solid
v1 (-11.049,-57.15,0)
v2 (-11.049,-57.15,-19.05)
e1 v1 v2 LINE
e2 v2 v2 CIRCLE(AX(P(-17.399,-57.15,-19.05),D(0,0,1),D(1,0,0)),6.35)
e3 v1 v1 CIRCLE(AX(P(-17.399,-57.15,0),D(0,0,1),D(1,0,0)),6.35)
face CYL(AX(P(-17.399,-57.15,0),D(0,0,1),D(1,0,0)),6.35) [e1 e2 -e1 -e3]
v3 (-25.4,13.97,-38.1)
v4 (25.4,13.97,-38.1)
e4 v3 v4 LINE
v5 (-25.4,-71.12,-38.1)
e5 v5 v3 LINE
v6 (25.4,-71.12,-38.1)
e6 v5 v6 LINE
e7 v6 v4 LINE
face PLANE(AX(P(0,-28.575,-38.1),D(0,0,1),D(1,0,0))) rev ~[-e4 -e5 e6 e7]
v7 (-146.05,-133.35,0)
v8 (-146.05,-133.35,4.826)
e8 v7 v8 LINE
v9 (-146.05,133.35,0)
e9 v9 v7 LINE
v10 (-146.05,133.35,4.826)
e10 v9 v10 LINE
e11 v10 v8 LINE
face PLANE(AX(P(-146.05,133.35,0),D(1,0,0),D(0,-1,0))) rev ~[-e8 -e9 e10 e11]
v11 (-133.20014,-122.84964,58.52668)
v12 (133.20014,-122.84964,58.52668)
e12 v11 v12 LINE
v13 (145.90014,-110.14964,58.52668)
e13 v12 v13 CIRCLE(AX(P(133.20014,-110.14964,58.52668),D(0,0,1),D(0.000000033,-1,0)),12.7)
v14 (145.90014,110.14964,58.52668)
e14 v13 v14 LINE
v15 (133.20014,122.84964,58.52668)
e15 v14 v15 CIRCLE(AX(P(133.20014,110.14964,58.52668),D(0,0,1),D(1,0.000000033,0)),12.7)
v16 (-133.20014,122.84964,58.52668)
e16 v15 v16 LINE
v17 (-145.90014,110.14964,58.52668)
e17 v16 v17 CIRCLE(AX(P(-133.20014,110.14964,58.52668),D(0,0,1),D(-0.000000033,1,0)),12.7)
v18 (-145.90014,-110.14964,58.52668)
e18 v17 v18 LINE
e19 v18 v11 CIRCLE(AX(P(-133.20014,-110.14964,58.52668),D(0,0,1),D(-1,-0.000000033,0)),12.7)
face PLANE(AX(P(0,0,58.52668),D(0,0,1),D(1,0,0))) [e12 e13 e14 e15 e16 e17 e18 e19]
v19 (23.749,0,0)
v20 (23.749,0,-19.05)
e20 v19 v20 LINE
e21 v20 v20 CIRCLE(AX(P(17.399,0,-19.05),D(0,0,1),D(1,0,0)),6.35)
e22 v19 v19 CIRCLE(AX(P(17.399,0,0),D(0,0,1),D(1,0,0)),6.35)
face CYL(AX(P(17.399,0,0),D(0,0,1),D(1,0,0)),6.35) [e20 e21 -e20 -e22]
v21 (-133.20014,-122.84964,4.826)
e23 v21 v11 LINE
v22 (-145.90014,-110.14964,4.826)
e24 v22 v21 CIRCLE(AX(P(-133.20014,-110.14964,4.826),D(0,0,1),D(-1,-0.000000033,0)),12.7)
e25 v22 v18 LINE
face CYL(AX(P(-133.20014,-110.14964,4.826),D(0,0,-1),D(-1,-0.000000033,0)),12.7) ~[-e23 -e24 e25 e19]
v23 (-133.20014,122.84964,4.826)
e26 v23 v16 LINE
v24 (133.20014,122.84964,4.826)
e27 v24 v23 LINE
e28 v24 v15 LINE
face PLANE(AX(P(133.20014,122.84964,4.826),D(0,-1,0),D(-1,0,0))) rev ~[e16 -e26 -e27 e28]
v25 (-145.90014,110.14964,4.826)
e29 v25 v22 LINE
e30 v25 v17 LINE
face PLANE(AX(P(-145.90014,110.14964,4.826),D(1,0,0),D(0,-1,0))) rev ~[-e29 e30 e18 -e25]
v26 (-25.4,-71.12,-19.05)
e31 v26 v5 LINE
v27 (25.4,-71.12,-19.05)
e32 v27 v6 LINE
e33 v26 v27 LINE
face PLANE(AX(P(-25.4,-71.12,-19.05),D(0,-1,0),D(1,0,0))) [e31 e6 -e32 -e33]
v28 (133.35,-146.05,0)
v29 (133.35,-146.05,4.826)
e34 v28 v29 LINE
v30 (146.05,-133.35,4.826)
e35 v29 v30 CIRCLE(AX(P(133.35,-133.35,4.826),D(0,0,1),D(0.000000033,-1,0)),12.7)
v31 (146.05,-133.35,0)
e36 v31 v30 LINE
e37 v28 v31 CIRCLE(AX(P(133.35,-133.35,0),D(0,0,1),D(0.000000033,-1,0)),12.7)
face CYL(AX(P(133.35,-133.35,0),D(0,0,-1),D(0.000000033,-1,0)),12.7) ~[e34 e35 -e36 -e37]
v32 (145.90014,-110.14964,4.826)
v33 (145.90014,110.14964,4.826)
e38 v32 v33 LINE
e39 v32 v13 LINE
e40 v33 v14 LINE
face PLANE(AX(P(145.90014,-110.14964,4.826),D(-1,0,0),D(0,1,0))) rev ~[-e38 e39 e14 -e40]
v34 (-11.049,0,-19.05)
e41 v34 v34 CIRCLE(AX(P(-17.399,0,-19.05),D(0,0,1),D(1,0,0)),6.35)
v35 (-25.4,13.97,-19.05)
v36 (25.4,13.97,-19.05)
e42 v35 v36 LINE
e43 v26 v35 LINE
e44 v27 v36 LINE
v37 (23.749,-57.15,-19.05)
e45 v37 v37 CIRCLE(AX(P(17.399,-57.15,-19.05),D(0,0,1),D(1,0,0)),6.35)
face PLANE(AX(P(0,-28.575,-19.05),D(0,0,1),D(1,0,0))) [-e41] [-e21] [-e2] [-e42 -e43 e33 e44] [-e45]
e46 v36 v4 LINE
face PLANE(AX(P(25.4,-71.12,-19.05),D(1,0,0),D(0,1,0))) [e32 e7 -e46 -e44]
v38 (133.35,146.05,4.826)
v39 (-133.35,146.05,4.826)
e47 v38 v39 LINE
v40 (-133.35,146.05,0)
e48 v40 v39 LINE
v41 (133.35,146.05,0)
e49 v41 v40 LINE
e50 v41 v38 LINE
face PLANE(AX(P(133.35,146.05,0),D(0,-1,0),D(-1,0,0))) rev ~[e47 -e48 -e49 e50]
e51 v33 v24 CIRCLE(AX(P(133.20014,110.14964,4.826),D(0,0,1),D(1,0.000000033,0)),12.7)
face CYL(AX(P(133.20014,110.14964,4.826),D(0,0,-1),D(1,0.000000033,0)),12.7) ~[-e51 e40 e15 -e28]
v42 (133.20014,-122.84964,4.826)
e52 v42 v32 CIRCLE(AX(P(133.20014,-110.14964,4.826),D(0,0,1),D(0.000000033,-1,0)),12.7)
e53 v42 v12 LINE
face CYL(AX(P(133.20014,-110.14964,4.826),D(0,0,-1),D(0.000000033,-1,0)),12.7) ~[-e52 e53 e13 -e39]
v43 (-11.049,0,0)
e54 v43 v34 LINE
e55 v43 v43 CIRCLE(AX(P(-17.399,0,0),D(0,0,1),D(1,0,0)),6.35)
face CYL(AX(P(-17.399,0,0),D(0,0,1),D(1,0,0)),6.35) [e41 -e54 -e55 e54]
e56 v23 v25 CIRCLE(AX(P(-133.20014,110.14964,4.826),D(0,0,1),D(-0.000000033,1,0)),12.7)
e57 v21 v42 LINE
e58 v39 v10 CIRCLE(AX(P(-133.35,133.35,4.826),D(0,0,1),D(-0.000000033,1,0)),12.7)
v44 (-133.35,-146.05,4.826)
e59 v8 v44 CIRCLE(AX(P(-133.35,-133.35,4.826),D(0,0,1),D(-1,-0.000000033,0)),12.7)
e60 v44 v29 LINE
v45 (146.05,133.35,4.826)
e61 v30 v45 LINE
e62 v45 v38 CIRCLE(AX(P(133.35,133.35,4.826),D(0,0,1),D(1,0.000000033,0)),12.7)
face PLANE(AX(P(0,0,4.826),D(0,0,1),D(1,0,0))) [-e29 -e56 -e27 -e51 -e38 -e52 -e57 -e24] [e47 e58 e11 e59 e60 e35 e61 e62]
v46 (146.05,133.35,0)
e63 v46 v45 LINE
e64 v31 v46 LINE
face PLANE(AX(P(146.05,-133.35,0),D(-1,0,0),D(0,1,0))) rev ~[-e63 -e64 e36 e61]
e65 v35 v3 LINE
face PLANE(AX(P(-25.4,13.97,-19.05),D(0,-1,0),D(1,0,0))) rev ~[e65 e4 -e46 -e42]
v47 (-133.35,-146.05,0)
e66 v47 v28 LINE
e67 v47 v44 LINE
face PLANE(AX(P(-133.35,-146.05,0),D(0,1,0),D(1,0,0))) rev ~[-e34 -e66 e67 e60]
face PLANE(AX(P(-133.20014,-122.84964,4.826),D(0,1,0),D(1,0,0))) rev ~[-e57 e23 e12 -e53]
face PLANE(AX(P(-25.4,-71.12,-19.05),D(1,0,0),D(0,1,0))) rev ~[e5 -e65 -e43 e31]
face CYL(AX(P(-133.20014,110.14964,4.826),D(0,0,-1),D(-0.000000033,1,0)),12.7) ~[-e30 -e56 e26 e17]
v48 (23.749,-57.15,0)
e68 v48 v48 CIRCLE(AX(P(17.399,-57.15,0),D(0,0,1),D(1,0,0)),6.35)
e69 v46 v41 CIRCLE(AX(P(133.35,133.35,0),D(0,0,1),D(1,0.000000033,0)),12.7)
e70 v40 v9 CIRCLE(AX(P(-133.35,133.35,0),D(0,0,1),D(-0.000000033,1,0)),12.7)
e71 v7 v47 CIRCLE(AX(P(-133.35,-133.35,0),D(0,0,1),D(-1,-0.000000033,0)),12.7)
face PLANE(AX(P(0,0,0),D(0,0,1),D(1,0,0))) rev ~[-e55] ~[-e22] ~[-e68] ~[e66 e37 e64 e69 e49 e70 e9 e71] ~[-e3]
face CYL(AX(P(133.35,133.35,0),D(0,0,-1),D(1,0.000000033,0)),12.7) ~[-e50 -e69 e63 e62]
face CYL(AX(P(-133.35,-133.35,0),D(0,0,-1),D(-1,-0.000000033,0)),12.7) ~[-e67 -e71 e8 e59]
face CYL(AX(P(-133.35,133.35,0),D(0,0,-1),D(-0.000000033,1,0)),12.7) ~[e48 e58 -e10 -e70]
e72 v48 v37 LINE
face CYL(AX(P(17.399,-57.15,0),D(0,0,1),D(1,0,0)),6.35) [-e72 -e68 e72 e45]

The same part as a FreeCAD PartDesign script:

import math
import FreeCAD as App
import Part
import Sketcher
from FreeCAD import Vector
Q = App.Units.Quantity

doc = App.newDocument("Part")
body = doc.addObject("PartDesign::Body", "Body")

sketch1 = doc.addObject("Sketcher::SketchObject", "Sketch")
body.addObject(sketch1)
sketch1.AttachmentSupport = (doc.XY_Plane, [""])
sketch1.MapMode = "FlatFace"
sketch1.addGeometry(Part.ArcOfCircle(Part.Circle(Vector(133.35, 133.35, 0), Vector(0, 0, 1), 12.7), math.radians(0.000002), math.radians(89.999998)), False)
sketch1.addGeometry(Part.LineSegment(Vector(133.35, 146.05, 0), Vector(-133.35, 146.05, 0)), False)
sketch1.addGeometry(Part.ArcOfCircle(Part.Circle(Vector(-133.35, 133.35, 0), Vector(0, 0, 1), 12.7), math.radians(90.000002), math.radians(179.999998)), False)
sketch1.addGeometry(Part.LineSegment(Vector(-146.05, 133.35, 0), Vector(-146.05, -133.35, 0)), False)
sketch1.addGeometry(Part.ArcOfCircle(Part.Circle(Vector(-133.35, -133.35, 0), Vector(0, 0, 1), 12.7), math.radians(-179.999998), math.radians(-90.000002)), False)
sketch1.addGeometry(Part.LineSegment(Vector(-133.35, -146.05, 0), Vector(133.35, -146.05, 0)), False)
sketch1.addGeometry(Part.ArcOfCircle(Part.Circle(Vector(133.35, -133.35, 0), Vector(0, 0, 1), 12.7), math.radians(-89.999998), math.radians(-0.000002)), False)
sketch1.addGeometry(Part.LineSegment(Vector(146.05, -133.35, 0), Vector(146.05, 133.35, 0)), False)
sketch1.addConstraint(Sketcher.Constraint("Tangent", 0, 2, 1, 1))
sketch1.addConstraint(Sketcher.Constraint("Tangent", 1, 2, 2, 1))
sketch1.addConstraint(Sketcher.Constraint("Tangent", 2, 2, 3, 1))
sketch1.addConstraint(Sketcher.Constraint("Tangent", 3, 2, 4, 1))
sketch1.addConstraint(Sketcher.Constraint("Tangent", 4, 2, 5, 1))
sketch1.addConstraint(Sketcher.Constraint("Tangent", 5, 2, 6, 1))
sketch1.addConstraint(Sketcher.Constraint("Tangent", 6, 2, 7, 1))
sketch1.addConstraint(Sketcher.Constraint("Tangent", 7, 2, 0, 1))
sketch1.addConstraint(Sketcher.Constraint("Horizontal", 1))
sketch1.addConstraint(Sketcher.Constraint("Vertical", 3))
sketch1.addConstraint(Sketcher.Constraint("Horizontal", 5))
sketch1.addConstraint(Sketcher.Constraint("Vertical", 7))
sketch1.addConstraint(Sketcher.Constraint("Equal", 0, 2))
sketch1.addConstraint(Sketcher.Constraint("Equal", 2, 4))
sketch1.addConstraint(Sketcher.Constraint("Equal", 4, 6))
sketch1.addConstraint(Sketcher.Constraint("Symmetric", 0, 3, 4, 3, -1, 1))
sketch1.addConstraint(Sketcher.Constraint("Equal", 5, 3))
sketch1.addConstraint(Sketcher.Constraint("Radius", 0, Q("0.5 in")))
sketch1.addConstraint(Sketcher.Constraint("DistanceX", 1, 2, 1, 1, Q("10.5 in")))
pad1 = doc.addObject("PartDesign::Pad", "Pad")
body.addObject(pad1)
pad1.Profile = sketch1
pad1.Length = Q("0.19 in")

sketch2 = doc.addObject("Sketcher::SketchObject", "Sketch001")
body.addObject(sketch2)
sketch2.AttachmentSupport = (doc.XY_Plane, [""])
sketch2.MapMode = "FlatFace"
sketch2.addGeometry(Part.Circle(Vector(-17.399, -57.15, 0), Vector(0, 0, 1), 6.35), False)
sketch2.addGeometry(Part.Circle(Vector(17.399, -57.15, 0), Vector(0, 0, 1), 6.35), False)
sketch2.addGeometry(Part.Circle(Vector(17.399, 0, 0), Vector(0, 0, 1), 6.35), False)
sketch2.addGeometry(Part.Circle(Vector(-17.399, 0, 0), Vector(0, 0, 1), 6.35), False)
sketch2.addConstraint(Sketcher.Constraint("Equal", 0, 1))
sketch2.addConstraint(Sketcher.Constraint("Equal", 1, 2))
sketch2.addConstraint(Sketcher.Constraint("Equal", 2, 3))
sketch2.addConstraint(Sketcher.Constraint("Symmetric", 2, 3, 3, 3, -1, 1))
sketch2.addConstraint(Sketcher.Constraint("Symmetric", 0, 3, 1, 3, -2))
sketch2.addConstraint(Sketcher.Constraint("PointOnObject", 2, 3, -1))
sketch2.addConstraint(Sketcher.Constraint("Vertical", 1, 3, 2, 3))
sketch2.addConstraint(Sketcher.Constraint("Diameter", 0, Q("0.5 in")))
sketch2.addConstraint(Sketcher.Constraint("DistanceY", 0, 3, -1, 1, Q("2.25 in")))
sketch2.addConstraint(Sketcher.Constraint("DistanceX", 0, 3, 1, 3, Q("1.37 in")))
pad2 = doc.addObject("PartDesign::Pad", "Pad001")
body.addObject(pad2)
pad2.Profile = sketch2
pad2.Length = Q("0.75 in")
pad2.Reversed = True

sketch3 = doc.addObject("Sketcher::SketchObject", "Sketch002")
body.addObject(sketch3)
sketch3.AttachmentSupport = (doc.XY_Plane, [""])
sketch3.MapMode = "FlatFace"
sketch3.AttachmentOffset = App.Placement(Vector(0, 0, -0.75 * 25.4), App.Rotation())
sketch3.addGeometry(Part.LineSegment(Vector(-25.4, 13.97, 0), Vector(-25.4, -71.12, 0)), False)
sketch3.addGeometry(Part.LineSegment(Vector(-25.4, -71.12, 0), Vector(25.4, -71.12, 0)), False)
sketch3.addGeometry(Part.LineSegment(Vector(25.4, -71.12, 0), Vector(25.4, 13.97, 0)), False)
sketch3.addGeometry(Part.LineSegment(Vector(25.4, 13.97, 0), Vector(-25.4, 13.97, 0)), False)
sketch3.addConstraint(Sketcher.Constraint("Coincident", 0, 2, 1, 1))
sketch3.addConstraint(Sketcher.Constraint("Coincident", 1, 2, 2, 1))
sketch3.addConstraint(Sketcher.Constraint("Coincident", 2, 2, 3, 1))
sketch3.addConstraint(Sketcher.Constraint("Coincident", 3, 2, 0, 1))
sketch3.addConstraint(Sketcher.Constraint("Vertical", 0))
sketch3.addConstraint(Sketcher.Constraint("Horizontal", 1))
sketch3.addConstraint(Sketcher.Constraint("Vertical", 2))
sketch3.addConstraint(Sketcher.Constraint("Horizontal", 3))
sketch3.addConstraint(Sketcher.Constraint("DistanceX", 1, 1, 1, 2, Q("2 in")))
sketch3.addConstraint(Sketcher.Constraint("DistanceX", 0, 2, -1, 1, Q("1 in")))
sketch3.addConstraint(Sketcher.Constraint("DistanceY", 0, 2, 0, 1, Q("3.35 in")))
sketch3.addConstraint(Sketcher.Constraint("DistanceY", 0, 2, -1, 1, Q("2.8 in")))
pad3 = doc.addObject("PartDesign::Pad", "Pad002")
body.addObject(pad3)
pad3.Profile = sketch3
pad3.Length = Q("0.75 in")
pad3.Reversed = True

sketch4 = doc.addObject("Sketcher::SketchObject", "Sketch003")
body.addObject(sketch4)
sketch4.AttachmentSupport = (doc.XY_Plane, [""])
sketch4.MapMode = "FlatFace"
sketch4.AttachmentOffset = App.Placement(Vector(0, 0, 0.19 * 25.4), App.Rotation())
sketch4.addGeometry(Part.LineSegment(Vector(-133.20014, -122.84964, 0), Vector(133.20014, -122.84964, 0)), False)
sketch4.addGeometry(Part.ArcOfCircle(Part.Circle(Vector(133.20014, -110.14964, 0), Vector(0, 0, 1), 12.7), math.radians(-89.999998), math.radians(-0.000002)), False)
sketch4.addGeometry(Part.LineSegment(Vector(145.90014, -110.14964, 0), Vector(145.90014, 110.14964, 0)), False)
sketch4.addGeometry(Part.ArcOfCircle(Part.Circle(Vector(133.20014, 110.14964, 0), Vector(0, 0, 1), 12.7), math.radians(0.000002), math.radians(89.999998)), False)
sketch4.addGeometry(Part.LineSegment(Vector(133.20014, 122.84964, 0), Vector(-133.20014, 122.84964, 0)), False)
sketch4.addGeometry(Part.ArcOfCircle(Part.Circle(Vector(-133.20014, 110.14964, 0), Vector(0, 0, 1), 12.7), math.radians(90.000002), math.radians(179.999998)), False)
sketch4.addGeometry(Part.LineSegment(Vector(-145.90014, 110.14964, 0), Vector(-145.90014, -110.14964, 0)), False)
sketch4.addGeometry(Part.ArcOfCircle(Part.Circle(Vector(-133.20014, -110.14964, 0), Vector(0, 0, 1), 12.7), math.radians(-179.999998), math.radians(-90.000002)), False)
sketch4.addConstraint(Sketcher.Constraint("Tangent", 0, 2, 1, 1))
sketch4.addConstraint(Sketcher.Constraint("Tangent", 1, 2, 2, 1))
sketch4.addConstraint(Sketcher.Constraint("Tangent", 2, 2, 3, 1))
sketch4.addConstraint(Sketcher.Constraint("Tangent", 3, 2, 4, 1))
sketch4.addConstraint(Sketcher.Constraint("Tangent", 4, 2, 5, 1))
sketch4.addConstraint(Sketcher.Constraint("Tangent", 5, 2, 6, 1))
sketch4.addConstraint(Sketcher.Constraint("Tangent", 6, 2, 7, 1))
sketch4.addConstraint(Sketcher.Constraint("Tangent", 7, 2, 0, 1))
sketch4.addConstraint(Sketcher.Constraint("Horizontal", 0))
sketch4.addConstraint(Sketcher.Constraint("Vertical", 2))
sketch4.addConstraint(Sketcher.Constraint("Horizontal", 4))
sketch4.addConstraint(Sketcher.Constraint("Vertical", 6))
sketch4.addConstraint(Sketcher.Constraint("Equal", 1, 3))
sketch4.addConstraint(Sketcher.Constraint("Equal", 3, 5))
sketch4.addConstraint(Sketcher.Constraint("Equal", 5, 7))
sketch4.addConstraint(Sketcher.Constraint("Symmetric", 1, 3, 5, 3, -1, 1))
sketch4.addConstraint(Sketcher.Constraint("Radius", 1, Q("0.5 in")))
sketch4.addConstraint(Sketcher.Constraint("DistanceX", 0, 1, 0, 2, Q("10.4882 in")))
sketch4.addConstraint(Sketcher.Constraint("DistanceY", 2, 1, 2, 2, Q("8.6732 in")))
pad4 = doc.addObject("PartDesign::Pad", "Pad003")
body.addObject(pad4)
pad4.Profile = sketch4
pad4.Length = Q("2.1142 in")

doc.recompute()
